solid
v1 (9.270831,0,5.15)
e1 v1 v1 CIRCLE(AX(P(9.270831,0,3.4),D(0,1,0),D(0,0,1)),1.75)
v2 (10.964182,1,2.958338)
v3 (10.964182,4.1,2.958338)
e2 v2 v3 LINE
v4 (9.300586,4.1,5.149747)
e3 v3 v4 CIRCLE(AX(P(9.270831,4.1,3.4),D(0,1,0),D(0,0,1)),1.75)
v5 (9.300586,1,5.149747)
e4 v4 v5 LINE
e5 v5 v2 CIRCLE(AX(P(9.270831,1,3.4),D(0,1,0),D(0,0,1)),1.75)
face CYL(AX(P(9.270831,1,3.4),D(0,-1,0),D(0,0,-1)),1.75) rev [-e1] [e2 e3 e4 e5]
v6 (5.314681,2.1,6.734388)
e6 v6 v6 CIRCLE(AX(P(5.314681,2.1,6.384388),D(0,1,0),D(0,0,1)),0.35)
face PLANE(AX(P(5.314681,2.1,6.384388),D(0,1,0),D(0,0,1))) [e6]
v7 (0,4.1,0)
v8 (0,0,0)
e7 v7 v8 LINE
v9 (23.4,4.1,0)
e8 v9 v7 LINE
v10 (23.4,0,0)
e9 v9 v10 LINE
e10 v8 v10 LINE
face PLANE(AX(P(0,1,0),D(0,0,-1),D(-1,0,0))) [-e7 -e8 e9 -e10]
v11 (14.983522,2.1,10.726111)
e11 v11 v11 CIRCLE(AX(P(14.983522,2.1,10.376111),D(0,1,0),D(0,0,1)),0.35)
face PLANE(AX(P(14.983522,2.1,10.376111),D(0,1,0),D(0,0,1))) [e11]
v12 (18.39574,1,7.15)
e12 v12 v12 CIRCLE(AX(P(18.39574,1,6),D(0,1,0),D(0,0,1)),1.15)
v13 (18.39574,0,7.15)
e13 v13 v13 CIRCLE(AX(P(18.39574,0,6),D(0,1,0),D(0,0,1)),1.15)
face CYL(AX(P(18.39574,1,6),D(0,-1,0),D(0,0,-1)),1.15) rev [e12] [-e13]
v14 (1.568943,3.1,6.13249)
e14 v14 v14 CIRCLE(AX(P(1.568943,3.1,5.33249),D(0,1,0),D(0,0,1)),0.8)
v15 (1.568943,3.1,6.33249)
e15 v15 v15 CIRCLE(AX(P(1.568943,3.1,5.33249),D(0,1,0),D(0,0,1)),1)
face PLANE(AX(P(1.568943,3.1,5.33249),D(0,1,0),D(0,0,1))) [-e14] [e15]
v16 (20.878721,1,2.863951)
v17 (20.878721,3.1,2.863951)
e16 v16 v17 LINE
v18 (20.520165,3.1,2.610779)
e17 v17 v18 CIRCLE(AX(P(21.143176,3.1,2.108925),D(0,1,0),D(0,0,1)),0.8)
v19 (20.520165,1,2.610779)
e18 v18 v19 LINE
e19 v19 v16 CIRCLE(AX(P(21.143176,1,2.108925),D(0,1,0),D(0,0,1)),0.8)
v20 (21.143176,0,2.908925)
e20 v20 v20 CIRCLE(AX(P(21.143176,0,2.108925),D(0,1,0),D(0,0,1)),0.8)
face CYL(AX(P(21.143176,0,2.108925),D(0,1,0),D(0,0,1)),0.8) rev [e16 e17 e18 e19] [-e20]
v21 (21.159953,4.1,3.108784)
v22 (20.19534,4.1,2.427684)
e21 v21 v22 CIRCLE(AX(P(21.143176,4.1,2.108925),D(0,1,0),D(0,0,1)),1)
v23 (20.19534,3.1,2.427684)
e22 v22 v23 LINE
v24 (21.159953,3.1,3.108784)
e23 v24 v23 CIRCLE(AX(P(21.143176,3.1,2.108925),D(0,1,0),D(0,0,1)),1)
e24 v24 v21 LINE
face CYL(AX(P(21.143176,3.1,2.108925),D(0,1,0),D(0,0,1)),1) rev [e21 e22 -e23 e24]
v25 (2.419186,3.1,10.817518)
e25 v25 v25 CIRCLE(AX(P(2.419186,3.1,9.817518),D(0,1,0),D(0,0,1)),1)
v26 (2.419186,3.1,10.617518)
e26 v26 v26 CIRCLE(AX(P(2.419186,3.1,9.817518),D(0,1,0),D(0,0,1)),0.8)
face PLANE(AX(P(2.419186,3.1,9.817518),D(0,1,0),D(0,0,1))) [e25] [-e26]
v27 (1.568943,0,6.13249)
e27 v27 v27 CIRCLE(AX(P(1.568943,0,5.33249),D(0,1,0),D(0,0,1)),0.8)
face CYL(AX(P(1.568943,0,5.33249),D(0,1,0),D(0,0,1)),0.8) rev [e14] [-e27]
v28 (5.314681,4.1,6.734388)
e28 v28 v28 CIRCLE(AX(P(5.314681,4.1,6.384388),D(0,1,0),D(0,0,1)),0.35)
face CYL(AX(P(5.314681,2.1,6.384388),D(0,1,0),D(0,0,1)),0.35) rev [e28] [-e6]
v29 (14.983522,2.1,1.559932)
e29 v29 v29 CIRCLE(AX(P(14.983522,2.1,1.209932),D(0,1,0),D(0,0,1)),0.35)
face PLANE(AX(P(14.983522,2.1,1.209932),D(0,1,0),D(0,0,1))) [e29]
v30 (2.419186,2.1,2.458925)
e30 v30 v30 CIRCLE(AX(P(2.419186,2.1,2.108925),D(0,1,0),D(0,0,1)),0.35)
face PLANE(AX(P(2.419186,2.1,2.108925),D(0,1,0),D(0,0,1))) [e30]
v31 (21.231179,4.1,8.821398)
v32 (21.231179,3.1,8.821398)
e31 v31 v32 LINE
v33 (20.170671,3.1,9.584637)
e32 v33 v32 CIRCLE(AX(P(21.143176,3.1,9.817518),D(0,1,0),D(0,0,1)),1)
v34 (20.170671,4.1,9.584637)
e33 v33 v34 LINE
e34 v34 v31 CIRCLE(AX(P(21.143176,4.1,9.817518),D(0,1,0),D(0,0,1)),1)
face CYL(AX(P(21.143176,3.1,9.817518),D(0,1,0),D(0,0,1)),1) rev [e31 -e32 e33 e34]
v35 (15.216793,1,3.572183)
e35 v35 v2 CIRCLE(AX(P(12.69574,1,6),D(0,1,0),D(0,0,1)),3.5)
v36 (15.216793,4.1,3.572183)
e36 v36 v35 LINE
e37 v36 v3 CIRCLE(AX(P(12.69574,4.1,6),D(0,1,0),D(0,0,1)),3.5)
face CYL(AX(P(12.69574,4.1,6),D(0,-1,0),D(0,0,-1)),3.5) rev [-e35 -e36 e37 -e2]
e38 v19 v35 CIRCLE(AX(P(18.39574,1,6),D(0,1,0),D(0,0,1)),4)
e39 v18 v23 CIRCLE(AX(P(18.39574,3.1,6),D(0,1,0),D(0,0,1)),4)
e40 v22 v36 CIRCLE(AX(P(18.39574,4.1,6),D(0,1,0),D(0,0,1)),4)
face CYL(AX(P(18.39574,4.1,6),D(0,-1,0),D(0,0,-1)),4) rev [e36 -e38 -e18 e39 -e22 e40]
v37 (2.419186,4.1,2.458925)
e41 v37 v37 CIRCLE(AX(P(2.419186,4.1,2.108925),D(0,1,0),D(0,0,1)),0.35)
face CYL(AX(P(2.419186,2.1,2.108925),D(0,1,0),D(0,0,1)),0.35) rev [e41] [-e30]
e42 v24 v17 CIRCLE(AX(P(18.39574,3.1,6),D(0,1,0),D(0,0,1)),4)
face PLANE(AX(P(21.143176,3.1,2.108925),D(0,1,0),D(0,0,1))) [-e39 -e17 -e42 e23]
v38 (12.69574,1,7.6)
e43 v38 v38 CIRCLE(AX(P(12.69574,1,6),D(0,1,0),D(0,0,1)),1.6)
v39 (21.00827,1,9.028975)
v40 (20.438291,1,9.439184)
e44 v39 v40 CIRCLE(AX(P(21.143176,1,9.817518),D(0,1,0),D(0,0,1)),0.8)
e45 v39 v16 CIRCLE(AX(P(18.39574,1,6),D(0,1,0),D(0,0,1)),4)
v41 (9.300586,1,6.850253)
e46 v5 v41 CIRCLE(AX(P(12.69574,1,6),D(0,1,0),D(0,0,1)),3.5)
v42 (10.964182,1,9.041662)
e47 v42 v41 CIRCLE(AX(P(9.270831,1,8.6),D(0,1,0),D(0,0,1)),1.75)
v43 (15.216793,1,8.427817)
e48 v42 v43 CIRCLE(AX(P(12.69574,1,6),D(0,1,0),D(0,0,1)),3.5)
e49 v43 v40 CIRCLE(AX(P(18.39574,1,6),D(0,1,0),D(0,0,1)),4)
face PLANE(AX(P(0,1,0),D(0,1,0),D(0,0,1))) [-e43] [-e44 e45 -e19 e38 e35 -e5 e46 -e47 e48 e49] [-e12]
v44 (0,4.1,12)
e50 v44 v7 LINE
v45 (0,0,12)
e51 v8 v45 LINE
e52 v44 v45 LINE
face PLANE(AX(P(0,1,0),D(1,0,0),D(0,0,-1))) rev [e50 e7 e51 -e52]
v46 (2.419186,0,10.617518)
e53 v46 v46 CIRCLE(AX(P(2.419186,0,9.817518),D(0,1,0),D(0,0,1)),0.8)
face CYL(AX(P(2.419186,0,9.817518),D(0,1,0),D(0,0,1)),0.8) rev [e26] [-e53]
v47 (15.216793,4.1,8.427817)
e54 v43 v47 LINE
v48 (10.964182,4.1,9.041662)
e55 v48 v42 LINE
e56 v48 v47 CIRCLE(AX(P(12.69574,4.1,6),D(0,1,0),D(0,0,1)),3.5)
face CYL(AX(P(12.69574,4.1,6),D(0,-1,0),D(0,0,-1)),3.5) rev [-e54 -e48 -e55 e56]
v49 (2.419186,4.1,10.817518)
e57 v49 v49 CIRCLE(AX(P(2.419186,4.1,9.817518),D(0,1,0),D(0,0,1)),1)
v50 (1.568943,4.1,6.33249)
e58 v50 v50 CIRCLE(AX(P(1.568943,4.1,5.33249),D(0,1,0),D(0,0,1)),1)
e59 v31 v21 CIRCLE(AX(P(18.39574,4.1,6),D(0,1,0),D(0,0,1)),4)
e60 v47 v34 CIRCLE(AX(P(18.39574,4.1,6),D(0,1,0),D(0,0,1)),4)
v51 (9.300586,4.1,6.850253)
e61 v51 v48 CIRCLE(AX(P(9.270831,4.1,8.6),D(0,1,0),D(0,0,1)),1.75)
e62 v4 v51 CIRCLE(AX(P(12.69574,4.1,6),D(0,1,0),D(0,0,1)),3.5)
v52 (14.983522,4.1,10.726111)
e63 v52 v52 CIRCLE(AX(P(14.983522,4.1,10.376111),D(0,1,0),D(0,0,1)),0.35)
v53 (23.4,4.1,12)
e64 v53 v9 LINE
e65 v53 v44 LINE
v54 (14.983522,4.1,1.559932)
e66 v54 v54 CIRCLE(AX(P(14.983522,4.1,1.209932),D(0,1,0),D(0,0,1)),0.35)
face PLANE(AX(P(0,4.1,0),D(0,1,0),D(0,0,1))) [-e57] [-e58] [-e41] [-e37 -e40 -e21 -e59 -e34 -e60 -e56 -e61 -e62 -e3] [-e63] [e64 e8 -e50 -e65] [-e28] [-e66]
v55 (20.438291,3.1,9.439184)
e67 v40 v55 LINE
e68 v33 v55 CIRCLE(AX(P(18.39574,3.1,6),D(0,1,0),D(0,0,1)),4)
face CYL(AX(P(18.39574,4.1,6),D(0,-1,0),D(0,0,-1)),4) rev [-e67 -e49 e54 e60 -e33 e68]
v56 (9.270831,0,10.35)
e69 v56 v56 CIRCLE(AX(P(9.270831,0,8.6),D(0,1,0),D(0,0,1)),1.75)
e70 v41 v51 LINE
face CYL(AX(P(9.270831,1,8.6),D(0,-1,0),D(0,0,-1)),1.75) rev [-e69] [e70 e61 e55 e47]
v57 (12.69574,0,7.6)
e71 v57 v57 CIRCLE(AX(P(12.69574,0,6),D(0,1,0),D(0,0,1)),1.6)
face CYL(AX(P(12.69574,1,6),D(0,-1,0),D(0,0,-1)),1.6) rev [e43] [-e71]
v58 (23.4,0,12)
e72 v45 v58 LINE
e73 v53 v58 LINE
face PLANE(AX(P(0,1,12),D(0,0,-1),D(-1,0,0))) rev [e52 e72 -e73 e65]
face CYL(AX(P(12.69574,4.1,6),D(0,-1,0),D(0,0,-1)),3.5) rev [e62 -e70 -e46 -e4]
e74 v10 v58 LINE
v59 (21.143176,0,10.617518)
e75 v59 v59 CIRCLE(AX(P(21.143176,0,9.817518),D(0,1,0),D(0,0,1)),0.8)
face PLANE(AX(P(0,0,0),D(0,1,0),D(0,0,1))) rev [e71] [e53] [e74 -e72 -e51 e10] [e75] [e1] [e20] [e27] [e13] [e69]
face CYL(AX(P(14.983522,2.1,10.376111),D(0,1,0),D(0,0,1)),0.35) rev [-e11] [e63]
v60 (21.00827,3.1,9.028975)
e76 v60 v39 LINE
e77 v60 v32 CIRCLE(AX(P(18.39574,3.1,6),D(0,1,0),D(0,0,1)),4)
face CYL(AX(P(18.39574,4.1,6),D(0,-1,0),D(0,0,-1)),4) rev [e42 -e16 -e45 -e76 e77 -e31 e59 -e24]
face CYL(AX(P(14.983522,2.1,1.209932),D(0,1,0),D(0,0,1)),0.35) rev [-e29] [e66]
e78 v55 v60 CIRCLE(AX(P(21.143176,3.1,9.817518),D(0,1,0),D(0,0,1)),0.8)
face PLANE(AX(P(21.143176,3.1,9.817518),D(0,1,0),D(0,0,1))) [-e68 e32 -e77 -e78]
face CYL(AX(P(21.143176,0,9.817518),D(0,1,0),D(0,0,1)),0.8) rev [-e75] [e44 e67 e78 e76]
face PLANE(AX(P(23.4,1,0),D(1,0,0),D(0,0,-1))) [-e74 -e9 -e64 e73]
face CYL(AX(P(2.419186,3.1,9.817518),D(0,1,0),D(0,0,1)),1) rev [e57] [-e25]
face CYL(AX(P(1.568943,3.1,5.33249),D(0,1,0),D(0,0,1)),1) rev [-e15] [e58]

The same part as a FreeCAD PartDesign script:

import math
import FreeCAD as App
import Part
import Sketcher
from FreeCAD import Vector
Q = App.Units.Quantity


def add_polygon(sketch, points):
    """Adds a closed chain of lines whose ends are joined by coincident constraints."""
    first, n = sketch.GeometryCount, len(points)
    for a, b in zip(points, points[1:] + points[:1]):
        sketch.addGeometry(Part.LineSegment(App.Vector(*a, 0), App.Vector(*b, 0)), False)
    for i in range(n):
        sketch.addConstraint(Sketcher.Constraint("Coincident", first + i, 2, first + (i + 1) % n, 1))

doc = App.newDocument("Part")
params = doc.addObject("Spreadsheet::Sheet", "Params")
for row, (alias, value) in enumerate([
    ("sketch1_diameter", "3.5 mm"),
    ("sketch1_diameter2", "3.2 mm"),
    ("sketch1_diameter3", "2.3 mm"),
    ("sketch1_height", "12 mm"),
    ("sketch1_width", "23.4 mm"),
    ("pad1_length", "1 mm"),
    ("sketch2_radius", "4 mm"),
    ("sketch2_radius2", "3.5 mm"),
    ("sketch2_height", "12 mm"),
    ("sketch2_radius3", "1.75 mm"),
    ("sketch2_width", "23.4 mm"),
    ("pad2_length", "3.1 mm"),
    ("sketch3_diameter", "0.7 mm"),
    ("pocket1_length", "2 mm"),
    ("sketch4_diameter", "2 mm"),
    ("pocket2_length", "1 mm"),
    ("sketch5_diameter", "1.6 mm"),
], start=1):
    params.set(f"A{row}", alias)
    params.set(f"B{row}", "=" + value)
    params.setAlias(f"B{row}", alias)

body = doc.addObject("PartDesign::Body", "Body")

# Sketch on XZ plane
sketch1 = doc.addObject("Sketcher::SketchObject", "Sketch")
body.addObject(sketch1)
sketch1.AttachmentSupport = (doc.XZ_Plane, [""])
sketch1.MapMode = "FlatFace"
add_polygon(sketch1, [(0, 0), (0, 12), (23.4, 12), (23.4, 0)])  # lines 0-3
sketch1.addGeometry(Part.Circle(Vector(9.3, 8.6, 0), Vector(0, 0, 1), 1.8), False)  # 4
sketch1.addGeometry(Part.Circle(Vector(12.7, 6, 0), Vector(0, 0, 1), 1.6), False)  # 5
sketch1.addGeometry(Part.Circle(Vector(9.3, 3.4, 0), Vector(0, 0, 1), 1.8), False)  # 6
sketch1.addGeometry(Part.Circle(Vector(18.4, 6, 0), Vector(0, 0, 1), 1.1), False)  # 7
sketch1.addConstraint(Sketcher.Constraint("Vertical", 0))
sketch1.addConstraint(Sketcher.Constraint("Horizontal", 1))
sketch1.addConstraint(Sketcher.Constraint("Vertical", 2))
sketch1.addConstraint(Sketcher.Constraint("Horizontal", 3))
sketch1.addConstraint(Sketcher.Constraint("Coincident", 3, 2, -1, 1))
sketch1.addConstraint(Sketcher.Constraint("Equal", 4, 6))
sketch1.addConstraint(Sketcher.Constraint("Horizontal", 5, 3, 7, 3))
sketch1.addConstraint(Sketcher.Constraint("Vertical", 4, 3, 6, 3))
sketch1.addConstraint(Sketcher.Constraint("Diameter", 4, Q("3.5 mm")))
sketch1.addConstraint(Sketcher.Constraint("Diameter", 5, Q("3.2 mm")))
sketch1.addConstraint(Sketcher.Constraint("Diameter", 7, Q("2.3 mm")))
sketch1.addConstraint(Sketcher.Constraint("DistanceY", 0, 1, 0, 2, Q("12 mm")))
sketch1.addConstraint(Sketcher.Constraint("DistanceX", 1, 1, 1, 2, Q("23.4 mm")))
sketch1.addConstraint(Sketcher.Constraint("DistanceY", -1, 1, 5, 3, Q("6 mm")))
sketch1.addConstraint(Sketcher.Constraint("DistanceY", -1, 1, 4, 3, Q("8.6 mm")))
sketch1.addConstraint(Sketcher.Constraint("DistanceY", -1, 1, 6, 3, Q("3.4 mm")))
sketch1.addConstraint(Sketcher.Constraint("DistanceX", 5, 3, 7, 3, Q("5.7 mm")))
sketch1.addConstraint(Sketcher.Constraint("DistanceX", -1, 1, 4, 3, Q("9.270831 mm")))
sketch1.addConstraint(Sketcher.Constraint("DistanceX", -1, 1, 5, 3, Q("12.69574 mm")))
sketch1.setExpression("Constraints[12]", "Params.sketch1_diameter")
sketch1.setExpression("Constraints[13]", "Params.sketch1_diameter2")
sketch1.setExpression("Constraints[14]", "Params.sketch1_diameter3")
sketch1.setExpression("Constraints[15]", "Params.sketch1_height")
sketch1.setExpression("Constraints[16]", "Params.sketch1_width")
pad1 = doc.addObject("PartDesign::Pad", "Pad")
body.addObject(pad1)
pad1.Profile = sketch1
pad1.setExpression("Length", "Params.pad1_length")
pad1.Reversed = True

# Sketch on XZ plane
sketch2 = doc.addObject("Sketcher::SketchObject", "Sketch001")
body.addObject(sketch2)
sketch2.AttachmentSupport = (doc.XZ_Plane, [""])
sketch2.MapMode = "FlatFace"
sketch2.AttachmentOffset = App.Placement(Vector(0, 0, -1), App.Rotation())
add_polygon(sketch2, [(0, 0), (0, 12), (23.4, 12), (23.4, 0)])  # lines 0-3
sketch2.addGeometry(Part.ArcOfCircle(Part.Circle(Vector(12.7, 6, 0), Vector(0, 0, 1), 3.5), math.radians(166), math.radians(194)), False)  # 4
sketch2.addGeometry(Part.ArcOfCircle(Part.Circle(Vector(9.3, 3.4, 0), Vector(0, 0, 1), 1.8), math.radians(89), math.radians(345)), False)  # 5
sketch2.addGeometry(Part.ArcOfCircle(Part.Circle(Vector(12.7, 6, 0), Vector(0, 0, 1), 3.5), math.radians(-120), math.radians(-44)), False)  # 6
sketch2.addGeometry(Part.ArcOfCircle(Part.Circle(Vector(18.4, 6, 0), Vector(0, 0, 1), 4), math.radians(-143), math.radians(0)), False)  # 7
sketch2.addGeometry(Part.ArcOfCircle(Part.Circle(Vector(18.4, 6, 0), Vector(0, 0, 1), 4), math.radians(0), math.radians(143)), False)  # 8
sketch2.addGeometry(Part.ArcOfCircle(Part.Circle(Vector(12.7, 6, 0), Vector(0, 0, 1), 3.5), math.radians(44), math.radians(120)), False)  # 9
sketch2.addGeometry(Part.ArcOfCircle(Part.Circle(Vector(9.3, 8.6, 0), Vector(0, 0, 1), 1.8), math.radians(15), math.radians(271)), False)  # 10
sketch2.addConstraint(Sketcher.Constraint("Coincident", 4, 2, 5, 1))
sketch2.addConstraint(Sketcher.Constraint("Coincident", 5, 2, 6, 1))
sketch2.addConstraint(Sketcher.Constraint("Coincident", 6, 2, 7, 1))
sketch2.addConstraint(Sketcher.Constraint("Tangent", 7, 2, 8, 1))
sketch2.addConstraint(Sketcher.Constraint("Coincident", 8, 2, 9, 1))
sketch2.addConstraint(Sketcher.Constraint("Coincident", 9, 2, 10, 1))
sketch2.addConstraint(Sketcher.Constraint("Coincident", 10, 2, 4, 1))
sketch2.addConstraint(Sketcher.Constraint("Vertical", 0))
sketch2.addConstraint(Sketcher.Constraint("Horizontal", 1))
sketch2.addConstraint(Sketcher.Constraint("Vertical", 2))
sketch2.addConstraint(Sketcher.Constraint("Horizontal", 3))
sketch2.addConstraint(Sketcher.Constraint("Coincident", 3, 2, -1, 1))
sketch2.addConstraint(Sketcher.Constraint("Coincident", 6, 3, 4, 3))
sketch2.addConstraint(Sketcher.Constraint("Coincident", 9, 3, 4, 3))
sketch2.addConstraint(Sketcher.Constraint("Equal", 4, 6))
sketch2.addConstraint(Sketcher.Constraint("Equal", 7, 8))
sketch2.addConstraint(Sketcher.Constraint("Equal", 6, 9))
sketch2.addConstraint(Sketcher.Constraint("Equal", 5, 10))
sketch2.addConstraint(Sketcher.Constraint("Horizontal", 6, 3, 7, 3))
sketch2.addConstraint(Sketcher.Constraint("Horizontal", 9, 3, 7, 2))
sketch2.addConstraint(Sketcher.Constraint("Vertical", 5, 3, 10, 3))
sketch2.addConstraint(Sketcher.Constraint("Vertical", 5, 2, 9, 2))
sketch2.addConstraint(Sketcher.Constraint("Radius", 7, Q("4 mm")))
sketch2.addConstraint(Sketcher.Constraint("Radius", 4, Q("3.5 mm")))
sketch2.addConstraint(Sketcher.Constraint("DistanceY", 0, 1, 0, 2, Q("12 mm")))
sketch2.addConstraint(Sketcher.Constraint("Radius", 5, Q("1.75 mm")))
sketch2.addConstraint(Sketcher.Constraint("DistanceX", 1, 1, 1, 2, Q("23.4 mm")))
sketch2.addConstraint(Sketcher.Constraint("DistanceY", -1, 1, 4, 3, Q("6 mm")))
sketch2.addConstraint(Sketcher.Constraint("DistanceY", -1, 1, 5, 3, Q("3.4 mm")))
sketch2.addConstraint(Sketcher.Constraint("DistanceX", 6, 3, 7, 3, Q("5.7 mm")))
sketch2.addConstraint(Sketcher.Constraint("DistanceX", -1, 1, 4, 3, Q("12.69574 mm")))
sketch2.addConstraint(Sketcher.Constraint("DistanceX", -1, 1, 5, 3, Q("9.270831 mm")))
sketch2.setExpression("Constraints[26]", "Params.sketch2_radius")
sketch2.setExpression("Constraints[27]", "Params.sketch2_radius2")
sketch2.setExpression("Constraints[28]", "Params.sketch2_height")
sketch2.setExpression("Constraints[29]", "Params.sketch2_radius3")
sketch2.setExpression("Constraints[30]", "Params.sketch2_width")
pad2 = doc.addObject("PartDesign::Pad", "Pad001")
body.addObject(pad2)
pad2.Profile = sketch2
pad2.setExpression("Length", "Params.pad2_length")
pad2.Reversed = True

# Sketch on XZ plane
sketch3 = doc.addObject("Sketcher::SketchObject", "Sketch002")
body.addObject(sketch3)
sketch3.AttachmentSupport = (doc.XZ_Plane, [""])
sketch3.MapMode = "FlatFace"
sketch3.AttachmentOffset = App.Placement(Vector(0, 0, -4.1), App.Rotation())
sketch3.addGeometry(Part.Circle(Vector(2.42, 2.11, 0), Vector(0, 0, 1), 0.35), False)
sketch3.addGeometry(Part.Circle(Vector(14.98, 1.21, 0), Vector(0, 0, 1), 0.35), False)
sketch3.addGeometry(Part.Circle(Vector(14.98, 10.38, 0), Vector(0, 0, 1), 0.35), False)
sketch3.addGeometry(Part.Circle(Vector(5.31, 6.38, 0), Vector(0, 0, 1), 0.35), False)
sketch3.addConstraint(Sketcher.Constraint("Equal", 0, 1))
sketch3.addConstraint(Sketcher.Constraint("Equal", 1, 2))
sketch3.addConstraint(Sketcher.Constraint("Equal", 2, 3))
sketch3.addConstraint(Sketcher.Constraint("Vertical", 1, 3, 2, 3))
sketch3.addConstraint(Sketcher.Constraint("Diameter", 0, Q("0.7 mm")))
sketch3.addConstraint(Sketcher.Constraint("DistanceX", -1, 1, 1, 3, Q("14.983522 mm")))
sketch3.addConstraint(Sketcher.Constraint("DistanceY", -1, 1, 2, 3, Q("10.376111 mm")))
sketch3.addConstraint(Sketcher.Constraint("DistanceX", -1, 1, 3, 3, Q("5.314681 mm")))
sketch3.addConstraint(Sketcher.Constraint("DistanceY", -1, 1, 3, 3, Q("6.384388 mm")))
sketch3.addConstraint(Sketcher.Constraint("DistanceY", 1, 3, 2, 3, Q("9.166179 mm")))
sketch3.addConstraint(Sketcher.Constraint("DistanceX", -1, 1, 0, 3, Q("2.419186 mm")))
sketch3.addConstraint(Sketcher.Constraint("DistanceY", -1, 1, 0, 3, Q("2.108925 mm")))
sketch3.setExpression("Constraints[4]", "Params.sketch3_diameter")
pocket1 = doc.addObject("PartDesign::Pocket", "Pocket")
body.addObject(pocket1)
pocket1.Profile = sketch3
pocket1.setExpression("Length", "Params.pocket1_length")
pocket1.Reversed = True

# Sketch on XZ plane
sketch4 = doc.addObject("Sketcher::SketchObject", "Sketch003")
body.addObject(sketch4)
sketch4.AttachmentSupport = (doc.XZ_Plane, [""])
sketch4.MapMode = "FlatFace"
sketch4.AttachmentOffset = App.Placement(Vector(0, 0, -4.1), App.Rotation())
sketch4.addGeometry(Part.Circle(Vector(1.6, 5.3, 0), Vector(0, 0, 1), 1), False)
sketch4.addGeometry(Part.Circle(Vector(2.4, 9.8, 0), Vector(0, 0, 1), 1), False)
sketch4.addGeometry(Part.Circle(Vector(21.1, 2.1, 0), Vector(0, 0, 1), 1), False)
sketch4.addGeometry(Part.Circle(Vector(21.1, 9.8, 0), Vector(0, 0, 1), 1), False)
sketch4.addConstraint(Sketcher.Constraint("Equal", 0, 1))
sketch4.addConstraint(Sketcher.Constraint("Equal", 1, 2))
sketch4.addConstraint(Sketcher.Constraint("Equal", 2, 3))
sketch4.addConstraint(Sketcher.Constraint("Horizontal", 1, 3, 3, 3))
sketch4.addConstraint(Sketcher.Constraint("Vertical", 2, 3, 3, 3))
sketch4.addConstraint(Sketcher.Constraint("Diameter", 0, Q("2 mm")))
sketch4.addConstraint(Sketcher.Constraint("DistanceY", -1, 1, 0, 3, Q("5.33249 mm")))
sketch4.addConstraint(Sketcher.Constraint("DistanceY", -1, 1, 1, 3, Q("9.817518 mm")))
sketch4.addConstraint(Sketcher.Constraint("DistanceX", 1, 3, 2, 3, Q("18.72399 mm")))
sketch4.addConstraint(Sketcher.Constraint("DistanceX", -1, 1, 0, 3, Q("1.568943 mm")))
sketch4.addConstraint(Sketcher.Constraint("DistanceX", -1, 1, 1, 3, Q("2.419186 mm")))
sketch4.addConstraint(Sketcher.Constraint("DistanceY", -1, 1, 2, 3, Q("2.108925 mm")))
sketch4.setExpression("Constraints[5]", "Params.sketch4_diameter")
pocket2 = doc.addObject("PartDesign::Pocket", "Pocket001")
body.addObject(pocket2)
pocket2.Profile = sketch4
pocket2.setExpression("Length", "Params.pocket2_length")
pocket2.Reversed = True

# Sketch on XZ plane
sketch5 = doc.addObject("Sketcher::SketchObject", "Sketch004")
body.addObject(sketch5)
sketch5.AttachmentSupport = (doc.XZ_Plane, [""])
sketch5.MapMode = "FlatFace"
sketch5.AttachmentOffset = App.Placement(Vector(0, 0, -4.1), App.Rotation())
sketch5.addGeometry(Part.Circle(Vector(1.6, 5.3, 0), Vector(0, 0, 1), 0.8), False)
sketch5.addGeometry(Part.Circle(Vector(21.1, 2.1, 0), Vector(0, 0, 1), 0.8), False)
sketch5.addGeometry(Part.Circle(Vector(2.4, 9.8, 0), Vector(0, 0, 1), 0.8), False)
sketch5.addGeometry(Part.Circle(Vector(21.1, 9.8, 0), Vector(0, 0, 1), 0.8), False)
sketch5.addConstraint(Sketcher.Constraint("Equal", 0, 1))
sketch5.addConstraint(Sketcher.Constraint("Equal", 1, 2))
sketch5.addConstraint(Sketcher.Constraint("Equal", 2, 3))
sketch5.addConstraint(Sketcher.Constraint("Horizontal", 2, 3, 3, 3))
sketch5.addConstraint(Sketcher.Constraint("Vertical", 1, 3, 3, 3))
sketch5.addConstraint(Sketcher.Constraint("Diameter", 0, Q("1.6 mm")))
sketch5.addConstraint(Sketcher.Constraint("DistanceY", -1, 1, 0, 3, Q("5.33249 mm")))
sketch5.addConstraint(Sketcher.Constraint("DistanceY", -1, 1, 2, 3, Q("9.817518 mm")))
sketch5.addConstraint(Sketcher.Constraint("DistanceX", 2, 3, 1, 3, Q("18.72399 mm")))
sketch5.addConstraint(Sketcher.Constraint("DistanceX", -1, 1, 0, 3, Q("1.568943 mm")))
sketch5.addConstraint(Sketcher.Constraint("DistanceX", -1, 1, 1, 3, Q("21.143176 mm")))
sketch5.addConstraint(Sketcher.Constraint("DistanceY", -1, 1, 1, 3, Q("2.108925 mm")))
sketch5.setExpression("Constraints[5]", "Params.sketch5_diameter")
pocket3 = doc.addObject("PartDesign::Pocket", "Pocket002")
body.addObject(pocket3)
pocket3.Profile = sketch5
pocket3.Type = "ThroughAll"
pocket3.Reversed = True

doc.recompute()
